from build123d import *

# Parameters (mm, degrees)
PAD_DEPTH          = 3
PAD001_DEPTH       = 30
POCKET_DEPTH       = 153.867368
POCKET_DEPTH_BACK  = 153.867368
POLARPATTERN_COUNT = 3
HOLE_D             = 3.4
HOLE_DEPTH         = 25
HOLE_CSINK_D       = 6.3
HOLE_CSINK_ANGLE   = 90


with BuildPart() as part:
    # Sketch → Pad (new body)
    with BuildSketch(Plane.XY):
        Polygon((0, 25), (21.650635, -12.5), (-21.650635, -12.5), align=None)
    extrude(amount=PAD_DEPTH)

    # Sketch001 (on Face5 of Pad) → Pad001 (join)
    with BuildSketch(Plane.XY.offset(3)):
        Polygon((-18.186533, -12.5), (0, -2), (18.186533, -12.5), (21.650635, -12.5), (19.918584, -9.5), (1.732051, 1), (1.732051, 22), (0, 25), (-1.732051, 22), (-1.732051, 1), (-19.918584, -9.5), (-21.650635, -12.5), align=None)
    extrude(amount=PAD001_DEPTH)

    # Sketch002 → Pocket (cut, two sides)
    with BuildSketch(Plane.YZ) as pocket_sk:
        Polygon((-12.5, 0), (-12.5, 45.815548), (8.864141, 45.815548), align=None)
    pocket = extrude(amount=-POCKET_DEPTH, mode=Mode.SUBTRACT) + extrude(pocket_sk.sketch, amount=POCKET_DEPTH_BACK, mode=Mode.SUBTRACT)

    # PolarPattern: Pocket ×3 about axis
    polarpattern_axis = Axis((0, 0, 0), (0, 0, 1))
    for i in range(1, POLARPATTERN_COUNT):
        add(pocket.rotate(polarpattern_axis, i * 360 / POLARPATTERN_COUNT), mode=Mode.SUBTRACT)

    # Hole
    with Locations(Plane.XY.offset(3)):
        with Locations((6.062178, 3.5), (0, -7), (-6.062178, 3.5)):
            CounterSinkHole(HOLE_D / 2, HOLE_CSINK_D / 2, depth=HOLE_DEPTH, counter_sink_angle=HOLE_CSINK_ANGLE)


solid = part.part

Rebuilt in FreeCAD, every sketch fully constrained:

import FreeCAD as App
import Part
import Sketcher

V = App.Vector
Q = App.Units.Quantity


def add_polygon(sketch, points):
    """Adds a closed chain of lines whose ends are joined by coincident constraints."""
    first, n = sketch.GeometryCount, len(points)
    for a, b in zip(points, points[1:] + points[:1]):
        sketch.addGeometry(Part.LineSegment(App.Vector(*a, 0), App.Vector(*b, 0)), False)
    for i in range(n):
        sketch.addConstraint(Sketcher.Constraint("Coincident", first + i, 2, first + (i + 1) % n, 1))

doc = App.newDocument("Part")
body = doc.addObject("PartDesign::Body", "Body")

# Sketch on XY plane
sketch1 = body.newObject("Sketcher::SketchObject", "Sketch")
sketch1.AttachmentSupport = (doc.getObject("XY_Plane"), [""])
sketch1.MapMode = "FlatFace"
add_polygon(sketch1, [(21.650635, -12.5), (0, 25), (-21.650635, -12.5)])  # lines 0-2
sketch1.addConstraint([
    Sketcher.Constraint("Horizontal", 2),
    Sketcher.Constraint("PointOnObject", 0, 2, -2),
    Sketcher.Constraint("Equal", 0, 1),
    Sketcher.Constraint("Angle", 0, Q("120 deg")),
    Sketcher.Constraint("DistanceY", -1, 1, 0, 2, Q("25 mm")),
    Sketcher.Constraint("DistanceY", 1, 2, -1, 1, Q("12.5 mm")),
])
pad1 = body.newObject("PartDesign::Pad", "Pad")
pad1.Profile = sketch1
pad1.Length = 3

# Sketch on XY plane
sketch2 = body.newObject("Sketcher::SketchObject", "Sketch001")
sketch2.AttachmentSupport = (doc.getObject("XY_Plane"), [""])
sketch2.MapMode = "FlatFace"
sketch2.AttachmentOffset = App.Placement(V(0, 0, 3), App.Rotation())
add_polygon(sketch2, [(-18.186533, -12.5), (0, -2), (18.186533, -12.5), (21.650635, -12.5), (19.918584, -9.5), (1.732051, 1), (1.732051, 22), (0, 25), (-1.732051, 22), (-1.732051, 1), (-19.918584, -9.5), (-21.650635, -12.5)])  # lines 0-11
sketch2.addConstraint([
    Sketcher.Constraint("Horizontal", 2),
    Sketcher.Constraint("Vertical", 5),
    Sketcher.Constraint("Vertical", 8),
    Sketcher.Constraint("Horizontal", 11),
    Sketcher.Constraint("Symmetric", 5, 2, 7, 2, -2),
    Sketcher.Constraint("Symmetric", 3, 2, 9, 2, -2),
    Sketcher.Constraint("Symmetric", 2, 2, 10, 2, -2),
    Sketcher.Constraint("PointOnObject", 0, 2, -2),
    Sketcher.Constraint("PointOnObject", 6, 2, -2),
    Sketcher.Constraint("Perpendicular", 0, 3),
    Sketcher.Constraint("Parallel", 1, 4),
    Sketcher.Constraint("Parallel", 3, 6),
    Sketcher.Constraint("Perpendicular", 4, 7),
    Sketcher.Constraint("Perpendicular", 6, 9),
    Sketcher.Constraint("Equal", 1, 4),
    Sketcher.Constraint("Equal", 3, 6),
    Sketcher.Constraint("DistanceY", 5, 1, 5, 2, Q("21 mm")),
    Sketcher.Constraint("Angle", 0, Q("30.000001 deg")),
    Sketcher.Constraint("Distance", 0, Q("21 mm")),
    Sketcher.Constraint("DistanceY", 0, 2, -1, 1, Q("2 mm")),
    Sketcher.Constraint("DistanceY", -1, 1, 4, 2, Q("1 mm")),
])
pad2 = body.newObject("PartDesign::Pad", "Pad001")
pad2.Profile = sketch2
pad2.Length = 30

# Sketch on YZ plane
sketch3 = body.newObject("Sketcher::SketchObject", "Sketch002")
sketch3.AttachmentSupport = (doc.getObject("YZ_Plane"), [""])
sketch3.MapMode = "FlatFace"
add_polygon(sketch3, [(-12.5, 45.815548), (-12.5, 0), (8.864141, 45.815548)])  # lines 0-2
sketch3.addConstraint([
    Sketcher.Constraint("Vertical", 0),
    Sketcher.Constraint("Horizontal", 2),
    Sketcher.Constraint("PointOnObject", 0, 2, -1),
    Sketcher.Constraint("Angle", 1, Q("65 deg")),
    Sketcher.Constraint("DistanceX", 0, 2, -1, 1, Q("12.5 mm")),
    Sketcher.Constraint("DistanceX", 2, 2, 2, 1, Q("21.364141 mm")),
])
pocket1 = body.newObject("PartDesign::Pocket", "Pocket")
pocket1.Profile = sketch3
pocket1.Type = "ThroughAll"
pocket1.Midplane = True
doc.recompute()

polarpattern = body.newObject("PartDesign::PolarPattern", "PolarPattern")
polarpattern.Originals = [pocket1]
polarpattern.Axis = (doc.getObject("Z_Axis"), [""])
polarpattern.Angle = 360
polarpattern.Occurrences = 3
body.Tip = polarpattern

# Sketch on XY plane
sketch4 = body.newObject("Sketcher::SketchObject", "Sketch003")
sketch4.AttachmentSupport = (doc.getObject("XY_Plane"), [""])
sketch4.MapMode = "FlatFace"
sketch4.AttachmentOffset = App.Placement(V(0, 0, 3), App.Rotation())
sketch4.addGeometry([
    Part.Circle(V(6.062178, 3.5, 0), V(0, 0, 1), 1.7),
    Part.Circle(V(0, -7, 0), V(0, 0, 1), 1.7),
    Part.Circle(V(-6.062178, 3.5, 0), V(0, 0, 1), 1.7),
], False)
sketch4.addConstraint([
    Sketcher.Constraint("Equal", 0, 1),
    Sketcher.Constraint("Equal", 1, 2),
    Sketcher.Constraint("Symmetric", 0, 3, 2, 3, -2),
    Sketcher.Constraint("PointOnObject", 1, 3, -2),
    Sketcher.Constraint("Diameter", 0, Q("3.4 mm")),
    Sketcher.Constraint("DistanceY", 1, 3, -1, 1, Q("7 mm")),
    Sketcher.Constraint("DistanceY", -1, 1, 0, 3, Q("3.5 mm")),
    Sketcher.Constraint("DistanceX", -1, 1, 0, 3, Q("6.062178 mm")),
])
doc.recompute()
hole = body.newObject("PartDesign::Hole", "Hole")
hole.Profile = sketch4
hole.ThreadType = "None"
hole.Diameter = 3.4
hole.DepthType = "Dimension"
hole.Depth = 25
hole.DrillPoint = "Flat"
hole.HoleCutType = "Countersink"
hole.HoleCutDiameter = 6.3
hole.HoleCutCountersinkAngle = 90

doc.recompute()
